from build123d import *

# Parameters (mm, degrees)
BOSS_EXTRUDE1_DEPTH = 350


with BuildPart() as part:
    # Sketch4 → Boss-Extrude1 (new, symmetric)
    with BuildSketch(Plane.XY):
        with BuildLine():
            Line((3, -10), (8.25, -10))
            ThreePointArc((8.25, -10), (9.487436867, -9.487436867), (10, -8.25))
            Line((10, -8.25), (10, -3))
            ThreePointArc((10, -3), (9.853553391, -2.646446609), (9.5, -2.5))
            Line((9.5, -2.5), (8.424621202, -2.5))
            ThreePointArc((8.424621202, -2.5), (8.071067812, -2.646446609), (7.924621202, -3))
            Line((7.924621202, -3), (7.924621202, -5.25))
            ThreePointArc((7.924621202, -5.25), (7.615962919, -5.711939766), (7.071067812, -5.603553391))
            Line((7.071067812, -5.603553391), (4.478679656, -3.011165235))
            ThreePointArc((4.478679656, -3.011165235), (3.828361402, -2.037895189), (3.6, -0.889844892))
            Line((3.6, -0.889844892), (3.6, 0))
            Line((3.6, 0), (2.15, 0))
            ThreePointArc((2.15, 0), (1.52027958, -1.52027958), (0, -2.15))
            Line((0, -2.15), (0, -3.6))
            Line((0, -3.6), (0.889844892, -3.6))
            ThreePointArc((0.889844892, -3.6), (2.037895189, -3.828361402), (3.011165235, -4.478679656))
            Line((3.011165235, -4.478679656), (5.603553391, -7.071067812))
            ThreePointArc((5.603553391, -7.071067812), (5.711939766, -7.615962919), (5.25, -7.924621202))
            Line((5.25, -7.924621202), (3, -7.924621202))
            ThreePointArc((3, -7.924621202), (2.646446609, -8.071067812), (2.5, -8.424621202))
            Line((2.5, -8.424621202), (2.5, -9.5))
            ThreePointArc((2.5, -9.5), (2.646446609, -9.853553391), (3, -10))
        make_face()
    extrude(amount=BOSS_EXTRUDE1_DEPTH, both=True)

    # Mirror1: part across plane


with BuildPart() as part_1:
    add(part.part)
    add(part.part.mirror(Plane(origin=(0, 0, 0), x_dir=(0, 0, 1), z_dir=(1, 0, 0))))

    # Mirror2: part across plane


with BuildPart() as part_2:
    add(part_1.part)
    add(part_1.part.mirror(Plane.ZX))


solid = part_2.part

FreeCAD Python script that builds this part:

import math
import FreeCAD as App
import Part
import Sketcher
from FreeCAD import Vector

doc = App.newDocument("Part")
params = doc.addObject("Spreadsheet::Sheet", "Params")
for row, (alias, value) in enumerate([
    ("sketch1_radius", "3 mm"),
    ("sketch1_radius2", "0.5 mm"),
    ("sketch1_radius3", "1.75 mm"),
    ("sketch1_radius4", "2.15 mm"),
    ("sketch1_width", "1.45 mm"),
    ("pad1_length", "700 mm"),
], start=1):
    params.set(f"A{row}", alias)
    params.set(f"B{row}", "=" + value)
    params.setAlias(f"B{row}", alias)

body = doc.addObject("PartDesign::Body", "Body")

# Sketch on XY plane
sketch1 = body.newObject("Sketcher::SketchObject", "Sketch")
sketch1.AttachmentSupport = (doc.getObject("XY_Plane"), [""])
sketch1.MapMode = "FlatFace"
sketch1.addGeometry([
    Part.LineSegment(Vector(3, -10, 0), Vector(8.25, -10, 0)),  # 0
    Part.ArcOfCircle(Part.Circle(Vector(8.25, -8.25, 0), Vector(0, 0, 1), 1.75), math.radians(-90), math.radians(0)),  # 1
    Part.LineSegment(Vector(10, -8.25, 0), Vector(10, -3, 0)),  # 2
    Part.ArcOfCircle(Part.Circle(Vector(9.5, -3, 0), Vector(0, 0, 1), 0.5), math.radians(0), math.radians(90)),  # 3
    Part.LineSegment(Vector(9.5, -2.5, 0), Vector(8.42, -2.5, 0)),  # 4
    Part.ArcOfCircle(Part.Circle(Vector(8.42, -3, 0), Vector(0, 0, 1), 0.5), math.radians(90), math.radians(180)),  # 5
    Part.LineSegment(Vector(7.92, -3, 0), Vector(7.92, -5.25, 0)),  # 6
    Part.ArcOfCircle(Part.Circle(Vector(7.42, -5.25, 0), Vector(0, 0, 1), 0.5), math.radians(-135), math.radians(0)),  # 7
    Part.LineSegment(Vector(7.07, -5.6, 0), Vector(4.48, -3.01, 0)),  # 8
    Part.ArcOfCircle(Part.Circle(Vector(6.6, -0.89, 0), Vector(0, 0, 1), 3), math.radians(180), math.radians(225)),  # 9
    Part.LineSegment(Vector(3.6, -0.89, 0), Vector(3.6, 0, 0)),  # 10
    Part.LineSegment(Vector(3.6, 0, 0), Vector(2.15, 0, 0)),  # 11
    Part.ArcOfCircle(Part.Circle(Vector(0, 0, 0), Vector(0, 0, 1), 2.15), math.radians(-90), math.radians(0)),  # 12
    Part.LineSegment(Vector(0, -2.15, 0), Vector(0, -3.6, 0)),  # 13
    Part.LineSegment(Vector(0, -3.6, 0), Vector(0.89, -3.6, 0)),  # 14
    Part.ArcOfCircle(Part.Circle(Vector(0.89, -6.6, 0), Vector(0, 0, 1), 3), math.radians(45), math.radians(90)),  # 15
    Part.LineSegment(Vector(3.01, -4.48, 0), Vector(5.6, -7.07, 0)),  # 16
    Part.ArcOfCircle(Part.Circle(Vector(5.25, -7.42, 0), Vector(0, 0, 1), 0.5), math.radians(-90), math.radians(45)),  # 17
    Part.LineSegment(Vector(5.25, -7.92, 0), Vector(3, -7.92, 0)),  # 18
    Part.ArcOfCircle(Part.Circle(Vector(3, -8.42, 0), Vector(0, 0, 1), 0.5), math.radians(90), math.radians(180)),  # 19
    Part.LineSegment(Vector(2.5, -8.42, 0), Vector(2.5, -9.5, 0)),  # 20
    Part.ArcOfCircle(Part.Circle(Vector(3, -9.5, 0), Vector(0, 0, 1), 0.5), math.radians(180), math.radians(270)),  # 21
], False)
sketch1.addConstraint([
    Sketcher.Constraint("Tangent", 0, 2, 1, 1),
    Sketcher.Constraint("Tangent", 1, 2, 2, 1),
    Sketcher.Constraint("Tangent", 2, 2, 3, 1),
    Sketcher.Constraint("Tangent", 3, 2, 4, 1),
    Sketcher.Constraint("Tangent", 4, 2, 5, 1),
    Sketcher.Constraint("Tangent", 5, 2, 6, 1),
    Sketcher.Constraint("Tangent", 6, 2, 7, 2),
    Sketcher.Constraint("Tangent", 7, 1, 8, 1),
    Sketcher.Constraint("Tangent", 8, 2, 9, 2),
    Sketcher.Constraint("Tangent", 9, 1, 10, 1),
    Sketcher.Constraint("Coincident", 10, 2, 11, 1),
    Sketcher.Constraint("Coincident", 11, 2, 12, 2),
    Sketcher.Constraint("Coincident", 12, 1, 13, 1),
    Sketcher.Constraint("Coincident", 13, 2, 14, 1),
    Sketcher.Constraint("Tangent", 14, 2, 15, 2),
    Sketcher.Constraint("Tangent", 15, 1, 16, 1),
    Sketcher.Constraint("Tangent", 16, 2, 17, 2),
    Sketcher.Constraint("Tangent", 17, 1, 18, 1),
    Sketcher.Constraint("Tangent", 18, 2, 19, 1),
    Sketcher.Constraint("Tangent", 19, 2, 20, 1),
    Sketcher.Constraint("Tangent", 20, 2, 21, 1),
    Sketcher.Constraint("Tangent", 21, 2, 0, 1),
    Sketcher.Constraint("Horizontal", 0),
    Sketcher.Constraint("Vertical", 2),
    Sketcher.Constraint("Horizontal", 4),
    Sketcher.Constraint("Vertical", 6),
    Sketcher.Constraint("Vertical", 10),
    Sketcher.Constraint("Horizontal", 11),
    Sketcher.Constraint("Vertical", 13),
    Sketcher.Constraint("Horizontal", 14),
    Sketcher.Constraint("Horizontal", 18),
    Sketcher.Constraint("Vertical", 20),
    Sketcher.Constraint("Coincident", 12, 3, -1, 1),
    Sketcher.Constraint("Equal", 3, 5),
    Sketcher.Constraint("Equal", 5, 7),
    Sketcher.Constraint("Equal", 9, 15),
    Sketcher.Constraint("Equal", 7, 17),
    Sketcher.Constraint("Equal", 17, 19),
    Sketcher.Constraint("Equal", 19, 21),
    Sketcher.Constraint("PointOnObject", 10, 2, -1),
    Sketcher.Constraint("PointOnObject", 12, 1, -2),
    Sketcher.Constraint("Parallel", 8, 16),
    Sketcher.Constraint("Equal", 0, 2),
    Sketcher.Constraint("Equal", 18, 6),
    Sketcher.Constraint("Equal", 14, 10),
    Sketcher.Constraint("Equal", 11, 13),
    Sketcher.Constraint("Equal", 4, 20),
    Sketcher.Constraint("Equal", 8, 16),
    Sketcher.Constraint("Radius", 9, 3.0),
    Sketcher.Constraint("Radius", 3, 0.5),
    Sketcher.Constraint("Radius", 1, 1.75),
    Sketcher.Constraint("Radius", 12, 2.15),
    Sketcher.Constraint("DistanceY", 3, 3, -1, 1, 3.0),
    Sketcher.Constraint("DistanceY", 0, 2, -1, 1, 10.0),
    Sketcher.Constraint("DistanceY", 1, 3, 7, 3, 3.0),
    Sketcher.Constraint("DistanceX", 11, 2, 11, 1, 1.45),
    Sketcher.Constraint("DistanceX", 4, 2, 4, 1, 1.075379),
])
sketch1.setExpression("Constraints[48]", "Params.sketch1_radius")
sketch1.setExpression("Constraints[49]", "Params.sketch1_radius2")
sketch1.setExpression("Constraints[50]", "Params.sketch1_radius3")
sketch1.setExpression("Constraints[51]", "Params.sketch1_radius4")
sketch1.setExpression("Constraints[55]", "Params.sketch1_width")
pad1 = body.newObject("PartDesign::Pad", "Pad")
pad1.Profile = sketch1
pad1.setExpression("Length", "Params.pad1_length")
pad1.Midplane = True
body2 = doc.addObject("PartDesign::Body", "Body001")
doc.recompute()

body2.BaseFeature = body
doc.recompute()

mirroring = doc.addObject("Part::Mirroring", "Mirroring")
mirroring.Source = body
mirroring.Base = Vector(0, 0, 0)
mirroring.Normal = Vector(1, 0, 0)
body3 = doc.addObject("PartDesign::Body", "Body002")
body3.BaseFeature = mirroring
boolean = body2.newObject("PartDesign::Boolean", "Boolean")
boolean.Type = "Fuse"
boolean.addObjects([body3])
doc.recompute()
body4 = doc.addObject("PartDesign::Body", "Body003")
doc.recompute()

body4.BaseFeature = body2
doc.recompute()

mirroring2 = doc.addObject("Part::Mirroring", "Mirroring001")
mirroring2.Source = body2
mirroring2.Base = Vector(0, 0, 0)
mirroring2.Normal = Vector(0, 1, 0)
body5 = doc.addObject("PartDesign::Body", "Body004")
body5.BaseFeature = mirroring2
boolean2 = body4.newObject("PartDesign::Boolean", "Boolean001")
boolean2.Type = "Fuse"
boolean2.addObjects([body5])
doc.recompute()
mirroring.Visibility = False
mirroring2.Visibility = False

doc.recompute()
